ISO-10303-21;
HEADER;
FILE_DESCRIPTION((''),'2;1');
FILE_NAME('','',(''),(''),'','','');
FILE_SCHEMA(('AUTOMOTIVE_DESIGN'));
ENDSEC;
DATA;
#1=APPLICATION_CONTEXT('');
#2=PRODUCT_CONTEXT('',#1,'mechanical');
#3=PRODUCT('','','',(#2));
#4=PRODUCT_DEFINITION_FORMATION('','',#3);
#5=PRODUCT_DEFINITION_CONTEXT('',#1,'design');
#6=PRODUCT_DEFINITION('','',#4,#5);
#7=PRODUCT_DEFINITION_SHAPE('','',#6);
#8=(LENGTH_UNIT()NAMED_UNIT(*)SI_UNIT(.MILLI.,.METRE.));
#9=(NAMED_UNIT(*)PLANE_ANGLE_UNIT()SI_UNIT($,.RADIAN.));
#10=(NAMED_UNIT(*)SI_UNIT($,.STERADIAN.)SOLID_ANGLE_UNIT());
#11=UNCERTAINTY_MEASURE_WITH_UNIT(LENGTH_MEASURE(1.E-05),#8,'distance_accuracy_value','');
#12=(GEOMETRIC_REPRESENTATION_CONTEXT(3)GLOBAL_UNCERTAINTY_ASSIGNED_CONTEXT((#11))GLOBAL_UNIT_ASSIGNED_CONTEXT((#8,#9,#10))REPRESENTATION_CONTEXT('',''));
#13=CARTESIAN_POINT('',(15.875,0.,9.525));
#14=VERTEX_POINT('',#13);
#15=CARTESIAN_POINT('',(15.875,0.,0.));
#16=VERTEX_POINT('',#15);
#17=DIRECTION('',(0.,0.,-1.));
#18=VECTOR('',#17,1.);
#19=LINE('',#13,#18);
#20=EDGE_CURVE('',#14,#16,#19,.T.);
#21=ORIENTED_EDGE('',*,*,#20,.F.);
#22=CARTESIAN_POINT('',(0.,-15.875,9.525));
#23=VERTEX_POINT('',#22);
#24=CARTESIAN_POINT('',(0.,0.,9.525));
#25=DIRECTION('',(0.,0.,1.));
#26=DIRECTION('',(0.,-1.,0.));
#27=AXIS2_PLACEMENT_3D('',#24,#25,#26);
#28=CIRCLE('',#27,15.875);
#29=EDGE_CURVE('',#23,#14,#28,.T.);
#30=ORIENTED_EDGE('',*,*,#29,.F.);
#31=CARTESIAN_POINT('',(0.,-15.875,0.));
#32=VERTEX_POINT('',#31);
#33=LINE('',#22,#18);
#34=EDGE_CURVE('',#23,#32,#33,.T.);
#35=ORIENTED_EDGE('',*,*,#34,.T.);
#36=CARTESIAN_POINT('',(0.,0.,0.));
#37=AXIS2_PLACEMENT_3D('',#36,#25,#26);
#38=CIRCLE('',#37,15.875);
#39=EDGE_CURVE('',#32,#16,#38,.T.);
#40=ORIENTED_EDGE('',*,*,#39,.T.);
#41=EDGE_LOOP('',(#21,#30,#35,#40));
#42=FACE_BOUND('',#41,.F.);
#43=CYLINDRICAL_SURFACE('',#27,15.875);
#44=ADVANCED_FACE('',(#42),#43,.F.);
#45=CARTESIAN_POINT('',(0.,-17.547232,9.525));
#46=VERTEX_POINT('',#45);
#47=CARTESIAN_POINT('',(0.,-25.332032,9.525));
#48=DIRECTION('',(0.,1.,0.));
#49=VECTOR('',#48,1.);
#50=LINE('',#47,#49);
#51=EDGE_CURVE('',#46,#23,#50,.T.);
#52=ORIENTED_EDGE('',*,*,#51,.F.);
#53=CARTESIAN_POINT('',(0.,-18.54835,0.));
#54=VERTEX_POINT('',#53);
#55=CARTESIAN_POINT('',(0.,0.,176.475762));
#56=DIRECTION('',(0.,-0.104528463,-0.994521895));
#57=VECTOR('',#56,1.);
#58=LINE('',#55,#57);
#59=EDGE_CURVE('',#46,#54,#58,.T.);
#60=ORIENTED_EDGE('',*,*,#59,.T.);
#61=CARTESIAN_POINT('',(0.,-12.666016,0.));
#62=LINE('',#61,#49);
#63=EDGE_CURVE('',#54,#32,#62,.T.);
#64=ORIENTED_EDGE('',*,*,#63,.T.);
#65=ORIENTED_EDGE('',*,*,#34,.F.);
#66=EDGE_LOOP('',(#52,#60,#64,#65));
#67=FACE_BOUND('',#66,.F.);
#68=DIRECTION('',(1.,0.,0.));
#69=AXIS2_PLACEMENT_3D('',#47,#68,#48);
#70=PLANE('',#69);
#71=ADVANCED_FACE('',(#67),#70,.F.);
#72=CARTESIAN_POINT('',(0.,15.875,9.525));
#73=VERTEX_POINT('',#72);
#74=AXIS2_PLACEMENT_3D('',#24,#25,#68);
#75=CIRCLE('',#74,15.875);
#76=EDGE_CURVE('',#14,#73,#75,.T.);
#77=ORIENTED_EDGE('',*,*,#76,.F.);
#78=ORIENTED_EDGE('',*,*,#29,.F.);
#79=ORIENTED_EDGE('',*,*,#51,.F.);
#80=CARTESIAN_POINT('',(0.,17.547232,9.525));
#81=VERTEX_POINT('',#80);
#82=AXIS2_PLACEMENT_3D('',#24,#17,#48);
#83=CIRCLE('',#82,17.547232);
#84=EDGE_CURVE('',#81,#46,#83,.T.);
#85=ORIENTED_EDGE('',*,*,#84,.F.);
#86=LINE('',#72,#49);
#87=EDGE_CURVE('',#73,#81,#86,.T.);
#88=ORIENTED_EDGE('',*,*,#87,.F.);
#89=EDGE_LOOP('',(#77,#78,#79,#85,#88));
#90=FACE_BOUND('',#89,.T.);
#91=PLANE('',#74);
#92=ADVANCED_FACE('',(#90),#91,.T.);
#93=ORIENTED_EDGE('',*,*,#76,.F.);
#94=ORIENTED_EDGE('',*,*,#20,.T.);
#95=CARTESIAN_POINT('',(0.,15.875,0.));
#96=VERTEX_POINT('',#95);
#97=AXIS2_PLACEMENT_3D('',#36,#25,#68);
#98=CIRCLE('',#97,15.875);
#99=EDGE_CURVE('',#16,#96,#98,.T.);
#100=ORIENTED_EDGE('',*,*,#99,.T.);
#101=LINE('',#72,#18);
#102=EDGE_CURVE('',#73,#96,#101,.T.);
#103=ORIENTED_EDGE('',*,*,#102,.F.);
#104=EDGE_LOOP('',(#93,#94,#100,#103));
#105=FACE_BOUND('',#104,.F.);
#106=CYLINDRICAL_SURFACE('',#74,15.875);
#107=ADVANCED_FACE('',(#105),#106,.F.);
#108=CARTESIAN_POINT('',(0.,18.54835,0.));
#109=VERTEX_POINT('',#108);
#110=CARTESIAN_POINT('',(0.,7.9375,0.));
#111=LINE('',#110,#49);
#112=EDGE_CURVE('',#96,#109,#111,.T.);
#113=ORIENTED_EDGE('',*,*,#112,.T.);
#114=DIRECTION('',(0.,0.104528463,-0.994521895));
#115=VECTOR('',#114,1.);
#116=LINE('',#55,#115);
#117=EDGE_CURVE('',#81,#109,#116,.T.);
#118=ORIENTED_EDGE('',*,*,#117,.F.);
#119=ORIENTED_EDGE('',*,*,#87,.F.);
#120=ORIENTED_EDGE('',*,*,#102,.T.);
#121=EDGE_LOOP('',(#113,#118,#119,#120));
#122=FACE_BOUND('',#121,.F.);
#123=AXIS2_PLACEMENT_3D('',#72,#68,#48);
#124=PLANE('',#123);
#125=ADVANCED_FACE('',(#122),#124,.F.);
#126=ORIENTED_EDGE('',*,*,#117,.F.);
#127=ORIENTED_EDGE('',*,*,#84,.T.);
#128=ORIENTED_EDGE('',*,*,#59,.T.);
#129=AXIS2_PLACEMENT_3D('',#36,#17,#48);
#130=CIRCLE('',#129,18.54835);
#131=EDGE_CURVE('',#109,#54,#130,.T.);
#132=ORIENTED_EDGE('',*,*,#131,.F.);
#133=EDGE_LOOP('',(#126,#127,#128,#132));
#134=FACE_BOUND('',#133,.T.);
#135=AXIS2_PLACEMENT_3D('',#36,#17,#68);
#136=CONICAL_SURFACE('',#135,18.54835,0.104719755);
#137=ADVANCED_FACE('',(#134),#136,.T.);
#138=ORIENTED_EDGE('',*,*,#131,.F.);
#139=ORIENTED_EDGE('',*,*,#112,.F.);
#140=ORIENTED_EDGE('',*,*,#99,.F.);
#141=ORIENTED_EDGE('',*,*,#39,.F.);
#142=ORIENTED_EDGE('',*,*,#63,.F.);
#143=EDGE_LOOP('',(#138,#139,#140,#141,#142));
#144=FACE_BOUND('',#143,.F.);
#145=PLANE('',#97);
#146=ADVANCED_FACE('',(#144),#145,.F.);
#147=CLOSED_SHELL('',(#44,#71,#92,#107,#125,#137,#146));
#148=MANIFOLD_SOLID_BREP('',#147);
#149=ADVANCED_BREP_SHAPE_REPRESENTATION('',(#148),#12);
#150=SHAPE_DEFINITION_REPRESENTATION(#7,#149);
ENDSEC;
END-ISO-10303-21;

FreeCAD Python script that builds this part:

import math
import FreeCAD as App
import Part
import Sketcher

V = App.Vector
Q = App.Units.Quantity

doc = App.newDocument("Part")
body = doc.addObject("PartDesign::Body", "Body")

# Sketch on XY plane
sketch1 = body.newObject("Sketcher::SketchObject", "Sketch")
sketch1.AttachmentSupport = (doc.getObject("XY_Plane"), [""])
sketch1.MapMode = "FlatFace"
sketch1.addGeometry(Part.Circle(V(0, 0, 0), V(0, 0, 1), 19), False)
sketch1.addConstraint([
    Sketcher.Constraint("Coincident", 0, 3, -1, 1),
    Sketcher.Constraint("Diameter", 0, Q("1.4605 in")),
])
pad1 = body.newObject("PartDesign::Pad", "Pad")
pad1.Profile = sketch1
pad1.Length = Q("0.375 in")
pad1.TaperAngle = -6

# Sketch on XY plane
sketch2 = body.newObject("Sketcher::SketchObject", "Sketch001")
sketch2.AttachmentSupport = (doc.getObject("XY_Plane"), [""])
sketch2.MapMode = "FlatFace"
sketch2.AttachmentOffset = App.Placement(V(0, 0, 0.375 * 25.4), App.Rotation())
sketch2.addGeometry([
    Part.ArcOfCircle(Part.Circle(V(0, 0, 0), V(0, 0, 1), 16), math.radians(0), math.radians(90)),  # 0
    Part.LineSegment(V(0, 16, 0), V(0, 24, 0)),  # 1
    Part.LineSegment(V(0, 24, 0), V(-20, 24, 0)),  # 2
    Part.LineSegment(V(-20, 24, 0), V(-20, -25, 0)),  # 3
    Part.LineSegment(V(-20, -25, 0), V(0, -25, 0)),  # 4
    Part.LineSegment(V(0, -25, 0), V(0, -16, 0)),  # 5
    Part.ArcOfCircle(Part.Circle(V(0, 0, 0), V(0, 0, 1), 16), math.radians(-90), math.radians(0)),  # 6
], False)
sketch2.addConstraint([
    Sketcher.Constraint("Coincident", 0, 2, 1, 1),
    Sketcher.Constraint("Coincident", 1, 2, 2, 1),
    Sketcher.Constraint("Coincident", 2, 2, 3, 1),
    Sketcher.Constraint("Coincident", 3, 2, 4, 1),
    Sketcher.Constraint("Coincident", 4, 2, 5, 1),
    Sketcher.Constraint("Coincident", 5, 2, 6, 1),
    Sketcher.Constraint("Tangent", 6, 2, 0, 1),
    Sketcher.Constraint("Vertical", 1),
    Sketcher.Constraint("Horizontal", 2),
    Sketcher.Constraint("Vertical", 3),
    Sketcher.Constraint("Horizontal", 4),
    Sketcher.Constraint("Vertical", 5),
    Sketcher.Constraint("Coincident", 0, 3, -1, 1),
    Sketcher.Constraint("Equal", 0, 6),
    Sketcher.Constraint("PointOnObject", 0, 2, -2),
    Sketcher.Constraint("PointOnObject", 4, 2, -2),
    Sketcher.Constraint("PointOnObject", 6, 2, -1),
    Sketcher.Constraint("Radius", 0, Q("0.625 in")),
    Sketcher.Constraint("DistanceY", 5, 1, 5, 2, 9.457032),
    Sketcher.Constraint("DistanceX", 2, 2, 2, 1, 20.402065),
    Sketcher.Constraint("DistanceY", 1, 1, 1, 2, 8.619015),
])
pocket1 = body.newObject("PartDesign::Pocket", "Pocket")
pocket1.Profile = sketch2
pocket1.Length = Q("1 in")

doc.recompute()
